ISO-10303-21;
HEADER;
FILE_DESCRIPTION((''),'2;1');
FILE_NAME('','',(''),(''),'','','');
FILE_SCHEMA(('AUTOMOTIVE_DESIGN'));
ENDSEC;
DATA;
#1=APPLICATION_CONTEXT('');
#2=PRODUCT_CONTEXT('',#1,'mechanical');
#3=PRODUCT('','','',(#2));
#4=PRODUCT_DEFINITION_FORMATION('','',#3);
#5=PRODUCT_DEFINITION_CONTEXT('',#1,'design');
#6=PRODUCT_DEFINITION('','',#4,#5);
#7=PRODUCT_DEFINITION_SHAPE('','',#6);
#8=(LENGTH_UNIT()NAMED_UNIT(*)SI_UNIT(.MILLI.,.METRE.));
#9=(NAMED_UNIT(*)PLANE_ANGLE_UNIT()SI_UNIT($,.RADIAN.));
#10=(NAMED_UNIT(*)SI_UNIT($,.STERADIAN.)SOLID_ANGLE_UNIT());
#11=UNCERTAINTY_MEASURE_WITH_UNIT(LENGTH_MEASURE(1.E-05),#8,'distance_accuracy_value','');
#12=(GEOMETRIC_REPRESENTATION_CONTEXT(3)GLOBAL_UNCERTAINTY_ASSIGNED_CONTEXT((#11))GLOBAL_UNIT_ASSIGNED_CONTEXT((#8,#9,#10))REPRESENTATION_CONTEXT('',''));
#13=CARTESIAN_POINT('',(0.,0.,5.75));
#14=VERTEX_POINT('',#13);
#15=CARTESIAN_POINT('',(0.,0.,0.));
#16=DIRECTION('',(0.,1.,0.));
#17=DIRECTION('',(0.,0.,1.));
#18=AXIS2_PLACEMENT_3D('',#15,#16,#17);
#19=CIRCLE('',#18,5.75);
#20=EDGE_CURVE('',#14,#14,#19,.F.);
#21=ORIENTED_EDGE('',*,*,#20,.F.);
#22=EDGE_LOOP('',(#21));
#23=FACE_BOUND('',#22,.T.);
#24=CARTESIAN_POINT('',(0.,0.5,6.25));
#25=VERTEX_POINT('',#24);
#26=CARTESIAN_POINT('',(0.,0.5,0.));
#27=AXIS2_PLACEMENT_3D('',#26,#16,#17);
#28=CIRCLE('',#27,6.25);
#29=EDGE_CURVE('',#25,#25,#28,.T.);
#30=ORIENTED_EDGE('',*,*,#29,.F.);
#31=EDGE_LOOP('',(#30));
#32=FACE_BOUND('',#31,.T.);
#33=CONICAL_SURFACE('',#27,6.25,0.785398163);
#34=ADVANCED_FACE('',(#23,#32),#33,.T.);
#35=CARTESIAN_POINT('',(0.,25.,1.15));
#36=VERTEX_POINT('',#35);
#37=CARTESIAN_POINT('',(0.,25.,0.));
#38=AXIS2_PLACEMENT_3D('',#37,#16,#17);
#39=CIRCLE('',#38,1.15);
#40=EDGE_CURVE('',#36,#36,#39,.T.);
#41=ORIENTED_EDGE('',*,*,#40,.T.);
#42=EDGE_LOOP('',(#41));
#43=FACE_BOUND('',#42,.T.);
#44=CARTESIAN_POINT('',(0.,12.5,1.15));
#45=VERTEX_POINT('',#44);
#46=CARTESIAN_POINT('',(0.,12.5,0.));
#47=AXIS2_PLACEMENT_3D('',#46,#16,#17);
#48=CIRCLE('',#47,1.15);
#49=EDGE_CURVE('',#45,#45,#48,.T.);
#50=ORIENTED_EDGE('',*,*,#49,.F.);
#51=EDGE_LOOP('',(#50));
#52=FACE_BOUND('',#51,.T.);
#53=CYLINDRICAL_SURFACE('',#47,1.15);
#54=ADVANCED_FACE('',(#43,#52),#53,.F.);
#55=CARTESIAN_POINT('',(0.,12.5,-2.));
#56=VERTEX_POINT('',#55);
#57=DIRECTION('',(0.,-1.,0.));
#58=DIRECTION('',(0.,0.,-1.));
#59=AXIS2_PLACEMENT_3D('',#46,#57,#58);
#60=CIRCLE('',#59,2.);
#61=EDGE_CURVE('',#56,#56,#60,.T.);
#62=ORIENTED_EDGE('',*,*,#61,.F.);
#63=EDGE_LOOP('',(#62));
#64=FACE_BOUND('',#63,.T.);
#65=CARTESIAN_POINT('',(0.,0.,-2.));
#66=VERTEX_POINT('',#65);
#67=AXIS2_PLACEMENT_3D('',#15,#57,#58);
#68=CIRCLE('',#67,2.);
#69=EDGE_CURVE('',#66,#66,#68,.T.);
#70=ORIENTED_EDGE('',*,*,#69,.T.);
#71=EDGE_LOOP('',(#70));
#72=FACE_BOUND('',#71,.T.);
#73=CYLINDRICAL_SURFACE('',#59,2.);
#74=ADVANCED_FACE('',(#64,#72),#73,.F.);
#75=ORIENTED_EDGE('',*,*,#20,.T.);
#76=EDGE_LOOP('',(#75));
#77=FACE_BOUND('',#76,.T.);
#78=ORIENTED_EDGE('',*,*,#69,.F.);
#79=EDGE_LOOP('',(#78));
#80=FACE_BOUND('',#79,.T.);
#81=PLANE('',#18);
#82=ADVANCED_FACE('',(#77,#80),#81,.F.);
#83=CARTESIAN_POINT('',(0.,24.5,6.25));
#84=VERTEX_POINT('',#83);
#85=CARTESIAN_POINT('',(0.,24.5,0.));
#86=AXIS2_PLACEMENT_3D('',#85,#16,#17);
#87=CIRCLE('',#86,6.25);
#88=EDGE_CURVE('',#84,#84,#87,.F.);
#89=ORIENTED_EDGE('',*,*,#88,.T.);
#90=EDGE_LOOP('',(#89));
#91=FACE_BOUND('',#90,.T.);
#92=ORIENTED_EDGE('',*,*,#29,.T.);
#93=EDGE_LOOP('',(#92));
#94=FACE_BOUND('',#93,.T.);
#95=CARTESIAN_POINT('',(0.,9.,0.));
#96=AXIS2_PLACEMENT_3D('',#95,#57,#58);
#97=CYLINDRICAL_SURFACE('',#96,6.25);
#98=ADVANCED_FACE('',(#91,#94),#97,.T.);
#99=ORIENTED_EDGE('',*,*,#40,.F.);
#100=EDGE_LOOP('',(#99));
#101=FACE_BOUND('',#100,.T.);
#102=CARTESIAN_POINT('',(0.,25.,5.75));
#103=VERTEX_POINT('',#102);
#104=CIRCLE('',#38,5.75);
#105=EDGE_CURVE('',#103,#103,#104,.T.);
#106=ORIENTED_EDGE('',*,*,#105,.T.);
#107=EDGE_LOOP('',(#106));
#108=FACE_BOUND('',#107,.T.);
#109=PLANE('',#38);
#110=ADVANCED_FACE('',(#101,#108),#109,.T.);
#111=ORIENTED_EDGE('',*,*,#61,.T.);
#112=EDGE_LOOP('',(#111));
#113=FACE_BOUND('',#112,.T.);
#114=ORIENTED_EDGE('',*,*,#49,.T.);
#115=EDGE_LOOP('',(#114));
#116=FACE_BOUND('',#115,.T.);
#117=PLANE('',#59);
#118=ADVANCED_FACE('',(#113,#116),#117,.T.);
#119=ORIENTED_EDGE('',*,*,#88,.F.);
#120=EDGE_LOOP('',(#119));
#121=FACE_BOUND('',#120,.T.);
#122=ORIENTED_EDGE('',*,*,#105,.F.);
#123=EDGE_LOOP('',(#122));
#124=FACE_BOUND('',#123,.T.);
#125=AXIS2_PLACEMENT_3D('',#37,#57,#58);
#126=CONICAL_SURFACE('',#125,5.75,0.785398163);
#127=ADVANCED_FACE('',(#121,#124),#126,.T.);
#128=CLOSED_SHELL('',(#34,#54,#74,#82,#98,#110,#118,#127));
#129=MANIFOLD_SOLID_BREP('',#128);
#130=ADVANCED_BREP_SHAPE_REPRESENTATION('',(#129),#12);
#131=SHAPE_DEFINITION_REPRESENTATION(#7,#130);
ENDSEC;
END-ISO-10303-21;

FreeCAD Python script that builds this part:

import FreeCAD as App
import Part
import Sketcher
Q = App.Units.Quantity


def edges_at(feature, points):
    """Names of the edges that pass closest to the given points."""
    edges = feature.Shape.Edges
    near = lambda p: min(range(len(edges)), key=lambda i: edges[i].distToShape(Part.Vertex(*p))[0])
    return sorted({f"Edge{near(p) + 1}" for p in points})

doc = App.newDocument("Part")
body = doc.addObject("PartDesign::Body", "Body")

# Sketch on XZ plane
sketch1 = doc.addObject("Sketcher::SketchObject", "Sketch")
body.addObject(sketch1)
sketch1.AttachmentSupport = (doc.XZ_Plane, [""])
sketch1.MapMode = "FlatFace"
sketch1.addGeometry(Part.Circle(App.Vector(0, 0, 0), App.Vector(0, 0, 1), 6), False)
sketch1.addConstraint(Sketcher.Constraint("Coincident", 0, 3, -1, 1))
sketch1.addConstraint(Sketcher.Constraint("Diameter", 0, Q("12.5 mm")))
pad1 = doc.addObject("PartDesign::Pad", "Pad")
body.addObject(pad1)
pad1.Profile = sketch1
pad1.Length = 9
pad1.Reversed = True

# Sketch on XZ plane
sketch2 = doc.addObject("Sketcher::SketchObject", "Sketch001")
body.addObject(sketch2)
sketch2.AttachmentSupport = (doc.XZ_Plane, [""])
sketch2.MapMode = "FlatFace"
sketch2.AttachmentOffset = App.Placement(App.Vector(0, 0, -9), App.Rotation())
sketch2.addGeometry(Part.Circle(App.Vector(0, 0, 0), App.Vector(0, 0, 1), 6), False)
sketch2.addConstraint(Sketcher.Constraint("Coincident", 0, 3, -1, 1))
sketch2.addConstraint(Sketcher.Constraint("Diameter", 0, Q("12.5 mm")))
pad2 = doc.addObject("PartDesign::Pad", "Pad001")
body.addObject(pad2)
pad2.Profile = sketch2
pad2.Length = 7
pad2.Reversed = True

# Sketch on XZ plane
sketch3 = doc.addObject("Sketcher::SketchObject", "Sketch002")
body.addObject(sketch3)
sketch3.AttachmentSupport = (doc.XZ_Plane, [""])
sketch3.MapMode = "FlatFace"
sketch3.AttachmentOffset = App.Placement(App.Vector(0, 0, -16), App.Rotation())
sketch3.addGeometry(Part.Circle(App.Vector(0, 0, 0), App.Vector(0, 0, 1), 6), False)
sketch3.addConstraint(Sketcher.Constraint("Coincident", 0, 3, -1, 1))
sketch3.addConstraint(Sketcher.Constraint("Diameter", 0, Q("12.5 mm")))
pad3 = doc.addObject("PartDesign::Pad", "Pad002")
body.addObject(pad3)
pad3.Profile = sketch3
pad3.Length = 9
pad3.Reversed = True

# Sketch on XZ plane
sketch4 = doc.addObject("Sketcher::SketchObject", "Sketch003")
body.addObject(sketch4)
sketch4.AttachmentSupport = (doc.XZ_Plane, [""])
sketch4.MapMode = "FlatFace"
sketch4.addGeometry(Part.Circle(App.Vector(0, 0, 0), App.Vector(0, 0, 1), 2), False)
sketch4.addConstraint(Sketcher.Constraint("Coincident", 0, 3, -1, 1))
sketch4.addConstraint(Sketcher.Constraint("Diameter", 0, Q("4 mm")))
pocket1 = doc.addObject("PartDesign::Pocket", "Pocket")
body.addObject(pocket1)
pocket1.Profile = sketch4
pocket1.Length = 12.5

# Sketch on XZ plane
sketch5 = doc.addObject("Sketcher::SketchObject", "Sketch004")
body.addObject(sketch5)
sketch5.AttachmentSupport = (doc.XZ_Plane, [""])
sketch5.MapMode = "FlatFace"
sketch5.AttachmentOffset = App.Placement(App.Vector(0, 0, -25), App.Rotation())
sketch5.addGeometry(Part.Circle(App.Vector(0, 0, 0), App.Vector(0, 0, 1), 1.1), False)
sketch5.addConstraint(Sketcher.Constraint("Coincident", 0, 3, -1, 1))
sketch5.addConstraint(Sketcher.Constraint("Diameter", 0, Q("2.3 mm")))
pocket2 = doc.addObject("PartDesign::Pocket", "Pocket001")
body.addObject(pocket2)
pocket2.Profile = sketch5
pocket2.Length = 12.5
pocket2.Reversed = True
doc.recompute()

chamfer = doc.addObject("PartDesign::Chamfer", "Chamfer")
body.addObject(chamfer)
chamfer.Base = (pocket2, edges_at(pocket2, [(0, 25, -6.25), (0, 0, -6.25)]))
chamfer.Size = 0.5

doc.recompute()
